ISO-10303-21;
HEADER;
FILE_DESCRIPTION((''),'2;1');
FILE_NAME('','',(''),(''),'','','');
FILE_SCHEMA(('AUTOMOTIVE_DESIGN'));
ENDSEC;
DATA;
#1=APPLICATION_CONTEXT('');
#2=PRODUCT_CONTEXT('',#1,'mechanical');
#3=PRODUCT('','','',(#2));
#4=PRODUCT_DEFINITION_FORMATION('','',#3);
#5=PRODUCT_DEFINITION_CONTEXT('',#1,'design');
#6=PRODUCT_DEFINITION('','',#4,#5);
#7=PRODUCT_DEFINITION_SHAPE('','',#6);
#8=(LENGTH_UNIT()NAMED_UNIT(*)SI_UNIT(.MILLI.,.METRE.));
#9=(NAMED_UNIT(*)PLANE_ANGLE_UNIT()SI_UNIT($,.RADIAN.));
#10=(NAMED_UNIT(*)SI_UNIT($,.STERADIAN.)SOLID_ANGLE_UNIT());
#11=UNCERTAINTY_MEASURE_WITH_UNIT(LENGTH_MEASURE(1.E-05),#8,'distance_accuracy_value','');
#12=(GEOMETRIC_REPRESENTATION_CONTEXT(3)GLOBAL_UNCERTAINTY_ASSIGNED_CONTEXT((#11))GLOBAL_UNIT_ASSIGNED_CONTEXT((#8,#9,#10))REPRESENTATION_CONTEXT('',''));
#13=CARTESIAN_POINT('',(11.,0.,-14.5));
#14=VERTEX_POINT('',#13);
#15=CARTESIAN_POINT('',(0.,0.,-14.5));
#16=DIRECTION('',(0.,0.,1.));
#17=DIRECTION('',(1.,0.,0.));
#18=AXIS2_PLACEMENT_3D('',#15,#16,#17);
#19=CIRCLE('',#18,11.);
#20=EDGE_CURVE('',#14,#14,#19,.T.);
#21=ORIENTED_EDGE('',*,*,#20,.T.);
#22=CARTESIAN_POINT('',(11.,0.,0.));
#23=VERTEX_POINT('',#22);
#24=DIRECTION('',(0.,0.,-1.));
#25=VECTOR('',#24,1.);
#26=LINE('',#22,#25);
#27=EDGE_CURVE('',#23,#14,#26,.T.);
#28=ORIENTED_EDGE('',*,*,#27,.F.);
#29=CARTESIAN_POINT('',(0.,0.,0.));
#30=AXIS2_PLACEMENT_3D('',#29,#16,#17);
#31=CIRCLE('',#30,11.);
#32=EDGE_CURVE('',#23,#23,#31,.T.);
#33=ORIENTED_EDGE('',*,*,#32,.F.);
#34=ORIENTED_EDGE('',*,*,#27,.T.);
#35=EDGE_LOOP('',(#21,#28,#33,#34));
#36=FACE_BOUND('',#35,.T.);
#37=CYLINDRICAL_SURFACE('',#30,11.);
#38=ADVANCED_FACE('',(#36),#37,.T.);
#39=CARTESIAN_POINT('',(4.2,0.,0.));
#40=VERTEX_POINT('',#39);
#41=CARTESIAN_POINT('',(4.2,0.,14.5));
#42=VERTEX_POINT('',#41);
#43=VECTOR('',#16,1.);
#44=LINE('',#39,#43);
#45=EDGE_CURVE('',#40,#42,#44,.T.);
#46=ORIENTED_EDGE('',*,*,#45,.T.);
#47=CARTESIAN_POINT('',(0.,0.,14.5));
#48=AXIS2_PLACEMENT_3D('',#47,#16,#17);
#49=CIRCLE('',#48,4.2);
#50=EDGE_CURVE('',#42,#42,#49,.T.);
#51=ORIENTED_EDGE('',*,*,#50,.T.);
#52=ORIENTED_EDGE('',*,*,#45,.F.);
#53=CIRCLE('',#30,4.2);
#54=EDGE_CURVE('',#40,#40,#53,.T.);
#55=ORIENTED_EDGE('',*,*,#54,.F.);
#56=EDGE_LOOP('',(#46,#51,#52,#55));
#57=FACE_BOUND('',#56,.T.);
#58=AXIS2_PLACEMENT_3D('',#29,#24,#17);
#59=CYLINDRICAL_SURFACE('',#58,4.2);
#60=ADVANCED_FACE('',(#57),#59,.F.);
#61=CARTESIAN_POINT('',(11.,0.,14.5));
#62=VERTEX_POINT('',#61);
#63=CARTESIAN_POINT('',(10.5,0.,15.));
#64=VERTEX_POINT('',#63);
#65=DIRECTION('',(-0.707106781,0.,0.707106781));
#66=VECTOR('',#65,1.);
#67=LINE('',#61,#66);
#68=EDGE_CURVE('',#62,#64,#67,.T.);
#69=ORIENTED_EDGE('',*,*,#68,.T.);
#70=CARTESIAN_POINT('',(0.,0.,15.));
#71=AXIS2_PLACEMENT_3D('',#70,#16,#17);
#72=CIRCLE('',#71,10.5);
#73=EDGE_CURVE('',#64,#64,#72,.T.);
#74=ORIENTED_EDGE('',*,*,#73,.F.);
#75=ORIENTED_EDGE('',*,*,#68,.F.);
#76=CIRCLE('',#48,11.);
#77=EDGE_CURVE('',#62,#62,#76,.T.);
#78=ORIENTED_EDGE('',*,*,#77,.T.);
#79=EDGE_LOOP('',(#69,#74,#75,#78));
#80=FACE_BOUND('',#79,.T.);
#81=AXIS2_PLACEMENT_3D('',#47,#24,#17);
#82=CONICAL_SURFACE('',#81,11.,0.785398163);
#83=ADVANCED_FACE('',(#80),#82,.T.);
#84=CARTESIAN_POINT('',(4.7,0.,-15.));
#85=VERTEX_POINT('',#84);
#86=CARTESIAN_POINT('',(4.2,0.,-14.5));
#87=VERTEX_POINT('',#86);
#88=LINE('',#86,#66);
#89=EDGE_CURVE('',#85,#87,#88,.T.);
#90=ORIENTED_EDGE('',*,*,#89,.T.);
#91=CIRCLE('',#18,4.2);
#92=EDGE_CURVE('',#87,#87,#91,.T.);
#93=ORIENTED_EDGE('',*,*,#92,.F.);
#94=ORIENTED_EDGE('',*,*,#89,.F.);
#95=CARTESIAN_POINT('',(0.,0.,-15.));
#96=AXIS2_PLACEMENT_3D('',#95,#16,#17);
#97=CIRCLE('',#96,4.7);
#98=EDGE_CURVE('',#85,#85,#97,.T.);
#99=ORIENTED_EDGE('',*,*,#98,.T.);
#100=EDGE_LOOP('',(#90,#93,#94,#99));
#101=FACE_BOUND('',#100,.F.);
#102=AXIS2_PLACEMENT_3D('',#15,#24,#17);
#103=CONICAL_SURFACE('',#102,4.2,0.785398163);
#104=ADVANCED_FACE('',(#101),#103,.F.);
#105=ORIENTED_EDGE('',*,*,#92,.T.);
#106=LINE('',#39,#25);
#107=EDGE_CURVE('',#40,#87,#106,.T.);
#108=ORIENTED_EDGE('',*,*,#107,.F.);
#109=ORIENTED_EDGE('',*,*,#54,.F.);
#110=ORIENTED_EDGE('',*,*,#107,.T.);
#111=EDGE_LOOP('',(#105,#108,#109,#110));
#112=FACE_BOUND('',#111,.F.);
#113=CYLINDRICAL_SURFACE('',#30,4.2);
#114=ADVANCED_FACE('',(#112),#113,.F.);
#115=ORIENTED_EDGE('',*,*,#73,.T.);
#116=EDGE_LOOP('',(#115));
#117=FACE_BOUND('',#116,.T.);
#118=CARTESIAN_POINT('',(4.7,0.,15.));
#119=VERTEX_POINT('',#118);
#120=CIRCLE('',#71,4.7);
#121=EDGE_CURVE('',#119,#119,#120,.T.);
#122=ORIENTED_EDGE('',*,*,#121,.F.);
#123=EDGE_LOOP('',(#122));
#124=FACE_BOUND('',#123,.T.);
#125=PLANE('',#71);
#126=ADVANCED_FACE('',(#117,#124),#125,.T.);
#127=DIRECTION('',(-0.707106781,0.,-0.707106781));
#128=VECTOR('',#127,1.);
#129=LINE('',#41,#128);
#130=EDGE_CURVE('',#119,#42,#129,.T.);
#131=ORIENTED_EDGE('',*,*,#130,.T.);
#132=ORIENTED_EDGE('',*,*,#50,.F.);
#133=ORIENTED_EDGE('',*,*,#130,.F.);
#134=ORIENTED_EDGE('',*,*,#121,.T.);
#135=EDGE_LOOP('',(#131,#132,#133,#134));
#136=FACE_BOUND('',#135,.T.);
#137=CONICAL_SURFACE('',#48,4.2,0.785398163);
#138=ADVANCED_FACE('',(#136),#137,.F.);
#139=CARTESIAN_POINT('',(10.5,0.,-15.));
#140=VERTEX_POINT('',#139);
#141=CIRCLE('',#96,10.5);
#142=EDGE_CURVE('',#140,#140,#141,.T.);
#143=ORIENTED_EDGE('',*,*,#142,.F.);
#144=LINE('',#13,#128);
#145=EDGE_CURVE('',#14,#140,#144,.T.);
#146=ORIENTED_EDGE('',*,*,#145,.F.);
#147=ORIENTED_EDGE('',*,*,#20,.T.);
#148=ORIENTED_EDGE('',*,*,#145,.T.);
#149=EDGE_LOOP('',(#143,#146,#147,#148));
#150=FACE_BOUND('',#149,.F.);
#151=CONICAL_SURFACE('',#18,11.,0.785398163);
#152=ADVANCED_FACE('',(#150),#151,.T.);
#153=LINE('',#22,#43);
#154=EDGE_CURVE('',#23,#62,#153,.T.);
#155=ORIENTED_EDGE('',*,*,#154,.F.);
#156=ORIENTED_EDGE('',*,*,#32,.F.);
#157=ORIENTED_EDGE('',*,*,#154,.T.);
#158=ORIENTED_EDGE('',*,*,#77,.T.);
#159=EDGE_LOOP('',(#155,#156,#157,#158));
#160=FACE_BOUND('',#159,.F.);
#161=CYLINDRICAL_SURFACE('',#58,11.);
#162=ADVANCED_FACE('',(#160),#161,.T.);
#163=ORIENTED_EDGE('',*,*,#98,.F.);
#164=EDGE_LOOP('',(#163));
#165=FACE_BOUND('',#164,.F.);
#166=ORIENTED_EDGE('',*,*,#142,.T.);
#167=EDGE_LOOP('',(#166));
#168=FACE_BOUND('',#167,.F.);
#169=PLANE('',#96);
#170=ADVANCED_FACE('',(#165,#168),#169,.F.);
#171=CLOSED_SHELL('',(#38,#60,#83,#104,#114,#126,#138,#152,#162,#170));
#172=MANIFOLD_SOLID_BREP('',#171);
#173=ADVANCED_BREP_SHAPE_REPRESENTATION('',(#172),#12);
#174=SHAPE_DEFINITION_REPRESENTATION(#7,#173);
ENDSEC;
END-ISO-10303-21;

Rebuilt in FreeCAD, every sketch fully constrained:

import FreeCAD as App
import Part
import Sketcher


def edges_at(feature, points):
    """Names of the edges that pass closest to the given points."""
    edges = feature.Shape.Edges
    near = lambda p: min(range(len(edges)), key=lambda i: edges[i].distToShape(Part.Vertex(*p))[0])
    return sorted({f"Edge{near(p) + 1}" for p in points})

doc = App.newDocument("Part")
body = doc.addObject("PartDesign::Body", "Body")

# Sketch on XY plane
sketch1 = body.newObject("Sketcher::SketchObject", "Sketch")
sketch1.AttachmentSupport = (doc.getObject("XY_Plane"), [""])
sketch1.MapMode = "FlatFace"
sketch1.addGeometry([
    Part.Circle(App.Vector(0, 0, 0), App.Vector(0, 0, 1), 11),
    Part.Circle(App.Vector(0, 0, 0), App.Vector(0, 0, 1), 4.2),
], False)
sketch1.addConstraint([
    Sketcher.Constraint("Coincident", 0, 3, -1, 1),
    Sketcher.Constraint("Coincident", 1, 3, -1, 1),
    Sketcher.Constraint("Diameter", 0, 22.0),
    Sketcher.Constraint("Diameter", 1, 8.4),
])
pad1 = body.newObject("PartDesign::Pad", "Pad")
pad1.Profile = sketch1
pad1.Length = 30
pad1.Midplane = True
doc.recompute()

chamfer = body.newObject("PartDesign::Chamfer", "Chamfer")
chamfer.Base = (pad1, edges_at(pad1, [
    (-4.2, 0, 15),
    (-4.2, 0, -15),
    (-11, 0, -15),
    (-11, 0, 15),
]))
chamfer.Size = 0.5

doc.recompute()
